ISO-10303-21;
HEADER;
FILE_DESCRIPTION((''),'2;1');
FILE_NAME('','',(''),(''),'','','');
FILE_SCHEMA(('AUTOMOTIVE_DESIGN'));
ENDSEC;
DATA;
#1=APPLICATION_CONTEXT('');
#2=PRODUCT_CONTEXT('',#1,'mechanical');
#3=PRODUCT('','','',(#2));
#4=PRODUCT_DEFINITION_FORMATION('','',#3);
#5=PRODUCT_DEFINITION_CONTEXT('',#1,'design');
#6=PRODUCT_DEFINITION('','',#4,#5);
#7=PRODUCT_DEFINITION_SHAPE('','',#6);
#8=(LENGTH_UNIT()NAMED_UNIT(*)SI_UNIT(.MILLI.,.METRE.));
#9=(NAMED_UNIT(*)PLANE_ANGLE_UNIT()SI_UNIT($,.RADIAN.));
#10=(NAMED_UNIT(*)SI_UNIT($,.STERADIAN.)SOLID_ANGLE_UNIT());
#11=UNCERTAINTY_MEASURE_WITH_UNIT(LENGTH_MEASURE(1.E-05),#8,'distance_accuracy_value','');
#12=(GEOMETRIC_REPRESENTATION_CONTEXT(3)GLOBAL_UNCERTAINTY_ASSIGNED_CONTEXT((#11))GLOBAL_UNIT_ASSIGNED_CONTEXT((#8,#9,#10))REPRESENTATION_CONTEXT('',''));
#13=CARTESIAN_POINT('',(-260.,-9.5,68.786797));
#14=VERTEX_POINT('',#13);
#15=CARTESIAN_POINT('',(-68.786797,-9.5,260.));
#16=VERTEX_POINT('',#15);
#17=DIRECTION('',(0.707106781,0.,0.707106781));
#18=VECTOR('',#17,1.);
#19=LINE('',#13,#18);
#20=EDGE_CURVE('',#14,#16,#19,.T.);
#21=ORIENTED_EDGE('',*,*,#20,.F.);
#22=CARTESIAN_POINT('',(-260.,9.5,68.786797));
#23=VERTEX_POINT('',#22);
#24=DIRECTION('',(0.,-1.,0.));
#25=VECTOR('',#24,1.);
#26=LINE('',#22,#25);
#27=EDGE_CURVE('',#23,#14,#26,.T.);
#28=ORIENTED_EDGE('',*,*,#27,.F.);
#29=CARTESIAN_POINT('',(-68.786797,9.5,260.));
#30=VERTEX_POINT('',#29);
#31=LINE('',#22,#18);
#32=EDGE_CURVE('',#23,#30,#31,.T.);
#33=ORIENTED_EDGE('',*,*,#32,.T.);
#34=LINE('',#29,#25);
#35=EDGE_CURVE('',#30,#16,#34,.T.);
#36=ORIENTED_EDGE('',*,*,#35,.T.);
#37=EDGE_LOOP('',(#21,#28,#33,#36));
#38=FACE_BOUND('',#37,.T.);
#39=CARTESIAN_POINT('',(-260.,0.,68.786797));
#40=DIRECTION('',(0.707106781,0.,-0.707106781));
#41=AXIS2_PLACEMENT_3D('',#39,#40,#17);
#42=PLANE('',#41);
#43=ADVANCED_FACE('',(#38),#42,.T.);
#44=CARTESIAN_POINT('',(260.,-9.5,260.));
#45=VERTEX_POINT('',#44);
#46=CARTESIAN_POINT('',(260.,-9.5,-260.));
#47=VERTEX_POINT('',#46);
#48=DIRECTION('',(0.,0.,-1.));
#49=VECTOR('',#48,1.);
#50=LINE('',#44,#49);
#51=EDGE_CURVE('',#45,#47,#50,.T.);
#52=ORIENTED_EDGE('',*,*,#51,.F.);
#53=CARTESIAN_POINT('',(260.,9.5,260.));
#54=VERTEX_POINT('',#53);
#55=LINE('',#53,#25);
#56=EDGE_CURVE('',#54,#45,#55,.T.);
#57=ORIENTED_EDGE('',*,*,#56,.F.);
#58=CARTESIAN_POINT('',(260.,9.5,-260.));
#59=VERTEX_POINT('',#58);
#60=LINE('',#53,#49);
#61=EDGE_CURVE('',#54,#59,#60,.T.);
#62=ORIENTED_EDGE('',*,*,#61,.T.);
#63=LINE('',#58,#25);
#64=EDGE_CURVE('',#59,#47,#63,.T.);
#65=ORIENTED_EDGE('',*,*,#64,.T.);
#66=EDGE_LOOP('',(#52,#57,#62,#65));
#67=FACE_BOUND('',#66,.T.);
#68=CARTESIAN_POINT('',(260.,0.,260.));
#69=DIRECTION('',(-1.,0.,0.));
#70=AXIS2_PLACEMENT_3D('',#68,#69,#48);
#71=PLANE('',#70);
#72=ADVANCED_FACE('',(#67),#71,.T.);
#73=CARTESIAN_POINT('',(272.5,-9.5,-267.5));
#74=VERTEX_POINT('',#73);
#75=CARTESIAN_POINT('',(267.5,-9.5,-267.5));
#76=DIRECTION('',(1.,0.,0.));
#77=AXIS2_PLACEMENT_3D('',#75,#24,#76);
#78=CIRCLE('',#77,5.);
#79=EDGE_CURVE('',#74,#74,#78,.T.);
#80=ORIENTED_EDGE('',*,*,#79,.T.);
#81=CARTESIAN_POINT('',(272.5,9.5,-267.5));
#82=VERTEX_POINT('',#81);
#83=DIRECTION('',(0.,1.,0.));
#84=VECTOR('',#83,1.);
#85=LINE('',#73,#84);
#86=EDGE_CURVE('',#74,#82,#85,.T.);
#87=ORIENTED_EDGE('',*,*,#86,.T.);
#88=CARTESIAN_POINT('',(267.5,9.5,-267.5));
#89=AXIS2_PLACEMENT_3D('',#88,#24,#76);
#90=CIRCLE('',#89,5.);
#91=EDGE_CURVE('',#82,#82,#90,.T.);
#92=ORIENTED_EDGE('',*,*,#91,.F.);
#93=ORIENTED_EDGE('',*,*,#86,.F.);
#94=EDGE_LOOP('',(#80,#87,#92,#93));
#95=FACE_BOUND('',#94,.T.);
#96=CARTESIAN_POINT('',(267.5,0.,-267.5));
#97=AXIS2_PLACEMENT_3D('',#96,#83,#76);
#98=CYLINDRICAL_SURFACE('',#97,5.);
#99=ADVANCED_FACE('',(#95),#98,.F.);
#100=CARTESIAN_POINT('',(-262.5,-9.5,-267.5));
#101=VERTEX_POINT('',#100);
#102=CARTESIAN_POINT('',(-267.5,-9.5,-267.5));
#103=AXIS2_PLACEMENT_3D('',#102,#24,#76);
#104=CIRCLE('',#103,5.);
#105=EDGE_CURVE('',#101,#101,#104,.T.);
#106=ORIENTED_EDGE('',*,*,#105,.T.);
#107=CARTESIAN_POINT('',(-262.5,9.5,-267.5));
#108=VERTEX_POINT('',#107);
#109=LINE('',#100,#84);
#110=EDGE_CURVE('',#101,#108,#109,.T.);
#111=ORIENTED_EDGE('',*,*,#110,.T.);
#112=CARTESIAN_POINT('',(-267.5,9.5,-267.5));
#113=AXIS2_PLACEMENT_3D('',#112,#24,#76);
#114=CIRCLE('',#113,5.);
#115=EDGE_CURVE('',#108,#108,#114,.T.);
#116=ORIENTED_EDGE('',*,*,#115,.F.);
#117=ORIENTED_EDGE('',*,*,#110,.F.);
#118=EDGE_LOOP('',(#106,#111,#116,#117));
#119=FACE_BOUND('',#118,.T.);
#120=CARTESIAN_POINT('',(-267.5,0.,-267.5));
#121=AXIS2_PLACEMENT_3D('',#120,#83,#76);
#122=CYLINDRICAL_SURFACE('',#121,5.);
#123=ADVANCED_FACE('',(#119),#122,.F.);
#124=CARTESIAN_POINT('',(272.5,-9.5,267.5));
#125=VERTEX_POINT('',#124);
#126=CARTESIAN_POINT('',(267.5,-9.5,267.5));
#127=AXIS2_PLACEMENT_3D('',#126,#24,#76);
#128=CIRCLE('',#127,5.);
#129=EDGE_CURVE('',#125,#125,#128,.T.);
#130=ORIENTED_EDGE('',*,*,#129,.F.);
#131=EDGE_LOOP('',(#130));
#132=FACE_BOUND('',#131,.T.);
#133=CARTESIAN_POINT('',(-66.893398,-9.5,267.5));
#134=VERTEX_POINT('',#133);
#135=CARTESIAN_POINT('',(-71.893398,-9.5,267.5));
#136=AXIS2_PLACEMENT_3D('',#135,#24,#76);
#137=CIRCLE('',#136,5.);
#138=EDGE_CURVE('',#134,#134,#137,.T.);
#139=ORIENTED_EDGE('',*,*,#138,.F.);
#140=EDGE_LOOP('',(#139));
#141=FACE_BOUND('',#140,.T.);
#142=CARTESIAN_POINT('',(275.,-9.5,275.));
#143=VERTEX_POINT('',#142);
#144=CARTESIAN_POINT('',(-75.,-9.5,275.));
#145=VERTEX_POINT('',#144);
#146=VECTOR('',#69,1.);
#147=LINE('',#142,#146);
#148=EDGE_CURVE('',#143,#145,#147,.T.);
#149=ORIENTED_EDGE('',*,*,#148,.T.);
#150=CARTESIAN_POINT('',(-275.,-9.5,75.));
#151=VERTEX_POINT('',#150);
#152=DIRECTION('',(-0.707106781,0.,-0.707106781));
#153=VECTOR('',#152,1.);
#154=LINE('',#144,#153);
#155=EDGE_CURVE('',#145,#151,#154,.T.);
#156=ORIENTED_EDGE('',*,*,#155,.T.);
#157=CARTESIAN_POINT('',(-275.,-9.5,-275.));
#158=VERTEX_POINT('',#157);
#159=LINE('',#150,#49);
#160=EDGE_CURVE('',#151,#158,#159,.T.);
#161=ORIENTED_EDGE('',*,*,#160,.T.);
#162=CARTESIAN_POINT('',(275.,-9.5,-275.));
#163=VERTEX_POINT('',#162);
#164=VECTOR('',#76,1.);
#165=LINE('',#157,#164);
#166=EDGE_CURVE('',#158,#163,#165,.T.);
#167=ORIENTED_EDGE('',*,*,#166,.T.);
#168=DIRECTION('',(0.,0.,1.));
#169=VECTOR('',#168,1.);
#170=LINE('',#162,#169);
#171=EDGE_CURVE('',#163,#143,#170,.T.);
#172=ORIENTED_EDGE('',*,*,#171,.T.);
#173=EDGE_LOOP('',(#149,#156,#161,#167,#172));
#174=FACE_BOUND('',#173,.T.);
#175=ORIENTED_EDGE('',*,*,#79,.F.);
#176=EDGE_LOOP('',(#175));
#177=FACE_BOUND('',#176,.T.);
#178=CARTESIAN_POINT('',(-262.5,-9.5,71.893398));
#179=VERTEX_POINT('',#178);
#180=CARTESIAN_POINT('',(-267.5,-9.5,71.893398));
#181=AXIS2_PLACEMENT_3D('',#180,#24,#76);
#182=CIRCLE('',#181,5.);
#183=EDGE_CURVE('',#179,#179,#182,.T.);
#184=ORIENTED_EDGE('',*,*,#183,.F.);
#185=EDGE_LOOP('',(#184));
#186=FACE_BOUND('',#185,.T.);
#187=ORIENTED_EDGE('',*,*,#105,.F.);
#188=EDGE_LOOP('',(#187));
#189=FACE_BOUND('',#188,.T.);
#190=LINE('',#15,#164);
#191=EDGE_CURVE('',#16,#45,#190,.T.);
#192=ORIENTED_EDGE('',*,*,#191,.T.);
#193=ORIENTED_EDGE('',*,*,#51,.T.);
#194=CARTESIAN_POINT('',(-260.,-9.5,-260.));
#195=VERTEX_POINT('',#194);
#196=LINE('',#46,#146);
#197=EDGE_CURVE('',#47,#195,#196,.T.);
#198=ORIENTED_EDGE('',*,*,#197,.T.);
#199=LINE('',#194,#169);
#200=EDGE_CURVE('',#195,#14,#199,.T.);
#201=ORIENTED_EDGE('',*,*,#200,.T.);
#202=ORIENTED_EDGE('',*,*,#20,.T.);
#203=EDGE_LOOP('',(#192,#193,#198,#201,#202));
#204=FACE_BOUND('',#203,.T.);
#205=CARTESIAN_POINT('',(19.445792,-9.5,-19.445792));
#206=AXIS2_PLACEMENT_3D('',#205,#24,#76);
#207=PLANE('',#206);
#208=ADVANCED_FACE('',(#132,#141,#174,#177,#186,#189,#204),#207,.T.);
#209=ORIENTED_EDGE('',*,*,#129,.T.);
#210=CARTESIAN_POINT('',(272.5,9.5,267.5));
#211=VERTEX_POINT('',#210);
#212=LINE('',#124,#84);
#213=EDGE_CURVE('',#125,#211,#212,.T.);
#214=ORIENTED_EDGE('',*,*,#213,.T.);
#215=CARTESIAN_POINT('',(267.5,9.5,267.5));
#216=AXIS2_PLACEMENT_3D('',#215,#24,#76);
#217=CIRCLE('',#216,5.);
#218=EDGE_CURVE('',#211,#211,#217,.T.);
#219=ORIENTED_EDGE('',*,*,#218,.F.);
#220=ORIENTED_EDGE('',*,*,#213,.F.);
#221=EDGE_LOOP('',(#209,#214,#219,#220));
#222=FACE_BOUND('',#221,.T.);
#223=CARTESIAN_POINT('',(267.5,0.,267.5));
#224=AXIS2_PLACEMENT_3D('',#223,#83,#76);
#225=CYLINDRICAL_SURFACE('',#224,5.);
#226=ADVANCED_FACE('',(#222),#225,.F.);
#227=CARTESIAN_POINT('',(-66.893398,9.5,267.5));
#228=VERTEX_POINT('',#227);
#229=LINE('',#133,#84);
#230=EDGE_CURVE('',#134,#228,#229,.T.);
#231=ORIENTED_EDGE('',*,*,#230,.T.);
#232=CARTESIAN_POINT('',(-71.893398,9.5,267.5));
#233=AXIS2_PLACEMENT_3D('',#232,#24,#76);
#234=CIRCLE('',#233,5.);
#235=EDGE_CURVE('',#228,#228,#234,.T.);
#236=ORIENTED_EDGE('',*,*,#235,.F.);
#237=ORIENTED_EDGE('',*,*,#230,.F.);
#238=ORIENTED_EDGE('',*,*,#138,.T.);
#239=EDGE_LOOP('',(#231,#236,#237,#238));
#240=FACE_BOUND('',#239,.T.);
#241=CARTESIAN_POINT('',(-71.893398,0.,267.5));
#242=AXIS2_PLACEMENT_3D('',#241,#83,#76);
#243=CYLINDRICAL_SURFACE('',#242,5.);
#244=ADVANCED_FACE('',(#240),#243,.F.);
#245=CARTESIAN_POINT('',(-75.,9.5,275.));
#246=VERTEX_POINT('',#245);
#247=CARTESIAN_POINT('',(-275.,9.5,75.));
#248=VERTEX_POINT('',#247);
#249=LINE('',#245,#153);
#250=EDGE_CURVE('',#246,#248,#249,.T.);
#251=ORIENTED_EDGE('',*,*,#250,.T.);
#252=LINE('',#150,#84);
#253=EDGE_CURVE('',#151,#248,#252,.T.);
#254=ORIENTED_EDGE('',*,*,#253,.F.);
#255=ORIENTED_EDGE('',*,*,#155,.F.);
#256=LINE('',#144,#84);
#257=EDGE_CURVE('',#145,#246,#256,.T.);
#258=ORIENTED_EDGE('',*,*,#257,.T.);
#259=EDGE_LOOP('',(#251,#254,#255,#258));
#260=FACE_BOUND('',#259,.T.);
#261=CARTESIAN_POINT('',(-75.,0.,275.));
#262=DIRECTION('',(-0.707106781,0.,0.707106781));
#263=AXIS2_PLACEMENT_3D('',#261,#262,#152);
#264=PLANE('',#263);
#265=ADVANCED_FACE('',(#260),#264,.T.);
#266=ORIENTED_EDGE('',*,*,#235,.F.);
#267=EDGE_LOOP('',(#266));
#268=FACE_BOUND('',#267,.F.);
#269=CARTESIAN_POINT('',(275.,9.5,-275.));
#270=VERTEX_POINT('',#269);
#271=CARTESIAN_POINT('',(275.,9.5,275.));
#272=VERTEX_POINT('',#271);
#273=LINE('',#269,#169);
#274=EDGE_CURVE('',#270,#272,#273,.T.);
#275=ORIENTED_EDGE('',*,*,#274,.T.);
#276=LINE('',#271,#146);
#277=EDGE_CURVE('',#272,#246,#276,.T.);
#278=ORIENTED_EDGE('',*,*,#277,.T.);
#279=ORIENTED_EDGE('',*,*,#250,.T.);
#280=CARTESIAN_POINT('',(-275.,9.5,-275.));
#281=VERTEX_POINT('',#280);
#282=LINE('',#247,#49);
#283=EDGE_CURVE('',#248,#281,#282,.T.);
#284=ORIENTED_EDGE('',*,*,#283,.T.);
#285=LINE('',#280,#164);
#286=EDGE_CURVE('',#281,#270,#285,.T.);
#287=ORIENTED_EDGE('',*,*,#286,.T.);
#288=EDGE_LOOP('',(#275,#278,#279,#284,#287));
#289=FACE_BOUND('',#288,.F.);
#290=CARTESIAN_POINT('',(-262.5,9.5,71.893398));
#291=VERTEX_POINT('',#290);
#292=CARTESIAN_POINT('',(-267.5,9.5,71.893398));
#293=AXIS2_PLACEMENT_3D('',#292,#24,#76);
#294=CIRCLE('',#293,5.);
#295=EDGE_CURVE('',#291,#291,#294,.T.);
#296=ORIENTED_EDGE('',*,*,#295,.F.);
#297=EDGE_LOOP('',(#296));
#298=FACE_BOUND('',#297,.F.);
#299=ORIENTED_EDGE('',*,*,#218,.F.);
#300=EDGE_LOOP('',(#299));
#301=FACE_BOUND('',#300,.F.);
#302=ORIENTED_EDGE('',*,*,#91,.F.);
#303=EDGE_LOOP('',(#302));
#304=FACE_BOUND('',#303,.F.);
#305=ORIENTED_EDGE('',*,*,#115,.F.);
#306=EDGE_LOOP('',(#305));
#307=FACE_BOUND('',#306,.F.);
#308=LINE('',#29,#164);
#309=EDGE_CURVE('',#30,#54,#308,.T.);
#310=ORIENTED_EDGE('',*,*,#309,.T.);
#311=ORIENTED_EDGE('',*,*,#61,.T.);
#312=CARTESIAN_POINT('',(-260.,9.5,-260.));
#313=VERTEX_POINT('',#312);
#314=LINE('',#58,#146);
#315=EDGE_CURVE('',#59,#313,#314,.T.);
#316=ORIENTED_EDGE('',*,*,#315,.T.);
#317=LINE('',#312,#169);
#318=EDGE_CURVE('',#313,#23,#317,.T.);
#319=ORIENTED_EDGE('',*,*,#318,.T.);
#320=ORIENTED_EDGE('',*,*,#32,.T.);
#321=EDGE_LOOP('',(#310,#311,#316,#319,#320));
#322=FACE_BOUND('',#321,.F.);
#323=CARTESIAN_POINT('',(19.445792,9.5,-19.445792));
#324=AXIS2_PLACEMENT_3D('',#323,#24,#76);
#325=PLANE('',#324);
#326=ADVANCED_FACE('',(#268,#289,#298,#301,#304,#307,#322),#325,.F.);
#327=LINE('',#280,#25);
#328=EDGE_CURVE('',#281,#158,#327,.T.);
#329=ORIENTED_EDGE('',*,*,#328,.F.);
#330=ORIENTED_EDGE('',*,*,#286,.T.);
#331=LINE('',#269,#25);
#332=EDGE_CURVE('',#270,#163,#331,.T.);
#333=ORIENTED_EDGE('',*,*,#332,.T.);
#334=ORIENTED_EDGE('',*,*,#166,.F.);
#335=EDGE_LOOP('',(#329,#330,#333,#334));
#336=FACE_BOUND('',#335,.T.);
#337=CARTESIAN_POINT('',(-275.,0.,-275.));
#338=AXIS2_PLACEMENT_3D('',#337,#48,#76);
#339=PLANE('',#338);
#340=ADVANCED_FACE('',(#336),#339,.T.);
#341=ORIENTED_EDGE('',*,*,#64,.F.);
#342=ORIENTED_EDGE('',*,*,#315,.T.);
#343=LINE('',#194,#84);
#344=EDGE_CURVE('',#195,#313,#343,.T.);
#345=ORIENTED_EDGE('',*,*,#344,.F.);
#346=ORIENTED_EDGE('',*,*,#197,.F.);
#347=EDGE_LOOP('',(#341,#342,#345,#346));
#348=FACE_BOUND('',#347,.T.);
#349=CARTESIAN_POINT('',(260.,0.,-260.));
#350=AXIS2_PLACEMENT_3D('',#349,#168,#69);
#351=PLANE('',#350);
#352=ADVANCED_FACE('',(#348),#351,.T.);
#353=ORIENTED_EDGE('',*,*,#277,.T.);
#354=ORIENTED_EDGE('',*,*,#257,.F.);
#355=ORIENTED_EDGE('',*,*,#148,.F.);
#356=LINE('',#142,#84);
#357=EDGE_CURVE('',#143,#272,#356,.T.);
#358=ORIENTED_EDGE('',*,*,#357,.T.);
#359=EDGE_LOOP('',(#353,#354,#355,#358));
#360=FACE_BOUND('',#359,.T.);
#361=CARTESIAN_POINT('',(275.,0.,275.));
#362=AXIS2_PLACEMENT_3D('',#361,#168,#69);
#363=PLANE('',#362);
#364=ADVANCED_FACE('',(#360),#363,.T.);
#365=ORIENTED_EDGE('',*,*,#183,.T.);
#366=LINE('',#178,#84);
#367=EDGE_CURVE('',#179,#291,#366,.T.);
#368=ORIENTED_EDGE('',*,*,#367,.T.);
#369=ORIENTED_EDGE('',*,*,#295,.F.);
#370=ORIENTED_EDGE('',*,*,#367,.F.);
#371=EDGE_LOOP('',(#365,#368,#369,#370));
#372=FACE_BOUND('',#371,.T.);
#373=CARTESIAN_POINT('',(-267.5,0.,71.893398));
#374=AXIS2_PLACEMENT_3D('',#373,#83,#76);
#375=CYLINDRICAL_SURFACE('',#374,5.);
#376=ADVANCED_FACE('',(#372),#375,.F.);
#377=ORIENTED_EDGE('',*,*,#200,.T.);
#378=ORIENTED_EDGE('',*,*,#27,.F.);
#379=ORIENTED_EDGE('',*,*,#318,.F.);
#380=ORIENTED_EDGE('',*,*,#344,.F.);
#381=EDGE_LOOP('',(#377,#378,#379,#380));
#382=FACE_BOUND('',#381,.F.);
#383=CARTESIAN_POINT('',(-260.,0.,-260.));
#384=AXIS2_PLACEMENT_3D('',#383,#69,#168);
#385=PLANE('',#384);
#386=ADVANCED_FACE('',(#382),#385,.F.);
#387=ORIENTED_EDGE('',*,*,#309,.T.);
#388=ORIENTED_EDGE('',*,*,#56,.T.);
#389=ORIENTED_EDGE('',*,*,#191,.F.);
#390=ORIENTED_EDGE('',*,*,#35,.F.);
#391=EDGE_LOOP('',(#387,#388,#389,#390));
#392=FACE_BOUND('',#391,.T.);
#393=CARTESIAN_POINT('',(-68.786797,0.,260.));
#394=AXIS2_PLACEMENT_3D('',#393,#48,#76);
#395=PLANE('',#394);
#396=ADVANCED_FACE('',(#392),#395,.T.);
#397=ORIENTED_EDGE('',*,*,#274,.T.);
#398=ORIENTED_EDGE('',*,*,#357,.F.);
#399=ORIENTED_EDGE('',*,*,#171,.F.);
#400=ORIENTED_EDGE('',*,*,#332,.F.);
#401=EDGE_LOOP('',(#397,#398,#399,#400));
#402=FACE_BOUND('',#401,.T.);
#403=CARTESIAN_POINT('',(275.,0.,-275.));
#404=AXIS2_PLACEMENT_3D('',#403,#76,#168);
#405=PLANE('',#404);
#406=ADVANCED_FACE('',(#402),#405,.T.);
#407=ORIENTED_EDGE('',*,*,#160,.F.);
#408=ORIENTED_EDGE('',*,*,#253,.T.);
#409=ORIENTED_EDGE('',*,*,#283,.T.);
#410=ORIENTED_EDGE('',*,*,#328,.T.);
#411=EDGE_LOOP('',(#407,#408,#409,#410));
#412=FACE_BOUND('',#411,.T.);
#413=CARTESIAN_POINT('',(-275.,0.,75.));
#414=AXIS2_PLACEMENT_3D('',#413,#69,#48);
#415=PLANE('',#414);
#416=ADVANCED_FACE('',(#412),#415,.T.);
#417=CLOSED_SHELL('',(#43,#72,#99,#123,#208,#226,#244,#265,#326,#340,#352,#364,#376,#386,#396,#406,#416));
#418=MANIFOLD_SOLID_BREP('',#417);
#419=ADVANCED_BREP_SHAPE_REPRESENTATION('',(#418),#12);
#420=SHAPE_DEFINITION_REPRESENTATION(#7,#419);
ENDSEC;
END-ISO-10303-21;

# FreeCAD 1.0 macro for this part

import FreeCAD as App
import Part
import Sketcher
Q = App.Units.Quantity


def add_polygon(sketch, points):
    """Adds a closed chain of lines whose ends are joined by coincident constraints."""
    first, n = sketch.GeometryCount, len(points)
    for a, b in zip(points, points[1:] + points[:1]):
        sketch.addGeometry(Part.LineSegment(App.Vector(*a, 0), App.Vector(*b, 0)), False)
    for i in range(n):
        sketch.addConstraint(Sketcher.Constraint("Coincident", first + i, 2, first + (i + 1) % n, 1))

doc = App.newDocument("Part")
body = doc.addObject("PartDesign::Body", "Body")

# Sketch on XZ plane
sketch1 = body.newObject("Sketcher::SketchObject", "Sketch")
sketch1.AttachmentSupport = (doc.getObject("XZ_Plane"), [""])
sketch1.MapMode = "FlatFace"
add_polygon(sketch1, [(-275, 75), (-275, -275), (275, -275), (275, 275), (-75, 275)])  # lines 0-4
sketch1.addGeometry(Part.Circle(App.Vector(-268, -268, 0), App.Vector(0, 0, 1), 5), False)  # 5
sketch1.addGeometry(Part.Circle(App.Vector(268, -268, 0), App.Vector(0, 0, 1), 5), False)  # 6
sketch1.addGeometry(Part.Circle(App.Vector(-268, 72, 0), App.Vector(0, 0, 1), 5), False)  # 7
sketch1.addGeometry(Part.Circle(App.Vector(-72, 268, 0), App.Vector(0, 0, 1), 5), False)  # 8
add_polygon(sketch1, [(260, 260), (260, -260), (-260, -260), (-260, 69), (-69, 260)])  # lines 9-13
sketch1.addGeometry(Part.Circle(App.Vector(268, 268, 0), App.Vector(0, 0, 1), 5), False)  # 14
sketch1.addConstraint(Sketcher.Constraint("Vertical", 0))
sketch1.addConstraint(Sketcher.Constraint("Horizontal", 1))
sketch1.addConstraint(Sketcher.Constraint("Vertical", 2))
sketch1.addConstraint(Sketcher.Constraint("Horizontal", 3))
sketch1.addConstraint(Sketcher.Constraint("Vertical", 9))
sketch1.addConstraint(Sketcher.Constraint("Horizontal", 10))
sketch1.addConstraint(Sketcher.Constraint("Vertical", 11))
sketch1.addConstraint(Sketcher.Constraint("Horizontal", 13))
sketch1.addConstraint(Sketcher.Constraint("Equal", 5, 6))
sketch1.addConstraint(Sketcher.Constraint("Equal", 6, 7))
sketch1.addConstraint(Sketcher.Constraint("Equal", 7, 8))
sketch1.addConstraint(Sketcher.Constraint("Equal", 8, 14))
sketch1.addConstraint(Sketcher.Constraint("Symmetric", 5, 3, 14, 3, -1, 1))
sketch1.addConstraint(Sketcher.Constraint("Symmetric", 0, 2, 2, 2, -1, 1))
sketch1.addConstraint(Sketcher.Constraint("Symmetric", 10, 2, 13, 2, -1, 1))
sketch1.addConstraint(Sketcher.Constraint("Symmetric", 5, 3, 6, 3, -2))
sketch1.addConstraint(Sketcher.Constraint("Parallel", 4, 12))
sketch1.addConstraint(Sketcher.Constraint("Horizontal", 8, 3, 14, 3))
sketch1.addConstraint(Sketcher.Constraint("Vertical", 5, 3, 7, 3))
sketch1.addConstraint(Sketcher.Constraint("Equal", 3, 0))
sketch1.addConstraint(Sketcher.Constraint("Equal", 1, 2))
sketch1.addConstraint(Sketcher.Constraint("Equal", 10, 9))
sketch1.addConstraint(Sketcher.Constraint("Diameter", 5, Q("10 mm")))
sketch1.addConstraint(Sketcher.Constraint("DistanceX", 1, 1, 1, 2, Q("550 mm")))
sketch1.addConstraint(Sketcher.Constraint("DistanceX", 3, 2, 3, 1, Q("350 mm")))
sketch1.addConstraint(Sketcher.Constraint("DistanceX", 10, 2, 10, 1, Q("520 mm")))
sketch1.addConstraint(Sketcher.Constraint("DistanceX", 5, 3, 6, 3, Q("535 mm")))
sketch1.addConstraint(Sketcher.Constraint("DistanceY", 5, 3, 8, 3, Q("535 mm")))
sketch1.addConstraint(Sketcher.Constraint("DistanceY", -1, 1, 7, 3, Q("71.893398 mm")))
sketch1.addConstraint(Sketcher.Constraint("DistanceX", 8, 3, -1, 1, Q("71.893398 mm")))
sketch1.addConstraint(Sketcher.Constraint("DistanceY", 11, 2, 7, 3, Q("3.106602 mm")))
pad1 = body.newObject("PartDesign::Pad", "Pad")
pad1.Profile = sketch1
pad1.Length = 19
pad1.Midplane = True

doc.recompute()
